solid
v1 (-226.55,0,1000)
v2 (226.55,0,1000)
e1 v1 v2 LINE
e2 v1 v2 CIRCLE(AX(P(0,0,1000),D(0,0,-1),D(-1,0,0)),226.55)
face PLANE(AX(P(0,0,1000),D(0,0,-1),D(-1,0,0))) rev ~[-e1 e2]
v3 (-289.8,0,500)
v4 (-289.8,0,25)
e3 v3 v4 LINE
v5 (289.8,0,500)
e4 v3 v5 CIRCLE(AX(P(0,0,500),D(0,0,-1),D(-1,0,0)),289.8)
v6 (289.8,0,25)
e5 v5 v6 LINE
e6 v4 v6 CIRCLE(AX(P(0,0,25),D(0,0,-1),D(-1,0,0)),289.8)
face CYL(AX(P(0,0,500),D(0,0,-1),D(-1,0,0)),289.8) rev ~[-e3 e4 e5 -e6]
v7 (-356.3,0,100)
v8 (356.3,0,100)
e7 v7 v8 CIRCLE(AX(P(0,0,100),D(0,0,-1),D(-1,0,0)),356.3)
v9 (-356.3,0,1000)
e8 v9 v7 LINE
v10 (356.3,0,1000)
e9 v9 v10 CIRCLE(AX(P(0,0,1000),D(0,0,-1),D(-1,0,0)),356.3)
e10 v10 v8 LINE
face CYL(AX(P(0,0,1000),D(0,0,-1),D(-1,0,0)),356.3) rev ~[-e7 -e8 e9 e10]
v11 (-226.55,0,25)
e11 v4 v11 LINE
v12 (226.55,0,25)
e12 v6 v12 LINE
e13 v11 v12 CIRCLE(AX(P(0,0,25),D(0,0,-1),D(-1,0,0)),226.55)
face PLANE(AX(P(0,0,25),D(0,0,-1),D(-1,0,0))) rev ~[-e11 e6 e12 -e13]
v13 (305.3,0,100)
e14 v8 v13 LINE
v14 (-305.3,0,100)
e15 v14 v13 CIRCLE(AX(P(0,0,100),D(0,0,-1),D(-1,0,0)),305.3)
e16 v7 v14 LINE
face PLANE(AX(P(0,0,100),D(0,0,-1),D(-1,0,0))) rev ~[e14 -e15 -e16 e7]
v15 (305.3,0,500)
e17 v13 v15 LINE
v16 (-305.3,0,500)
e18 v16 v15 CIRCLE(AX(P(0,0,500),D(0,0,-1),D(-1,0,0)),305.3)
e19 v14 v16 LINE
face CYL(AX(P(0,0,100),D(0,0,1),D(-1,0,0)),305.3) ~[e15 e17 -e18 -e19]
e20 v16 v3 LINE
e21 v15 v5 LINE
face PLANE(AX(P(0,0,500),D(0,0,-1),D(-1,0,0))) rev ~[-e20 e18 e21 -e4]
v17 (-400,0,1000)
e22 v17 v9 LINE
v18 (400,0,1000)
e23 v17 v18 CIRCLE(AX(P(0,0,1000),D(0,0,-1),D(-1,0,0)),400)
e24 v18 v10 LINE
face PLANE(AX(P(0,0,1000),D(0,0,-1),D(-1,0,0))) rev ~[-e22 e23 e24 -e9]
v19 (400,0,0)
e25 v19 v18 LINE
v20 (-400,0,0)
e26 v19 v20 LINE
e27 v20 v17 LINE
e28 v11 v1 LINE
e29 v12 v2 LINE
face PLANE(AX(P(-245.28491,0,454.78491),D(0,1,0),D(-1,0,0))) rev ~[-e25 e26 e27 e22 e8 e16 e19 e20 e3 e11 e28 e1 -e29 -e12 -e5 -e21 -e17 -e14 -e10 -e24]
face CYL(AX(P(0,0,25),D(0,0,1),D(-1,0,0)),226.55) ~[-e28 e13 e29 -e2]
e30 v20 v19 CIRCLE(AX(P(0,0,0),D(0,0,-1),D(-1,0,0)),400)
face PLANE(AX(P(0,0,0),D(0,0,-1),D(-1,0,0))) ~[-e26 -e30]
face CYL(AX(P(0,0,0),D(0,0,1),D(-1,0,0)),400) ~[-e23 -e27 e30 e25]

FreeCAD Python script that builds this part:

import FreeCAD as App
import Part
import Sketcher
from FreeCAD import Vector


def add_polygon(sketch, points):
    """Adds a closed chain of lines whose ends are joined by coincident constraints."""
    first, n = sketch.GeometryCount, len(points)
    for a, b in zip(points, points[1:] + points[:1]):
        sketch.addGeometry(Part.LineSegment(App.Vector(*a, 0), App.Vector(*b, 0)), False)
    for i in range(n):
        sketch.addConstraint(Sketcher.Constraint("Coincident", first + i, 2, first + (i + 1) % n, 1))

doc = App.newDocument("Part")
body = doc.addObject("PartDesign::Body", "Body")

# Sketch on XZ plane
sketch1 = body.newObject("Sketcher::SketchObject", "Sketch")
sketch1.AttachmentSupport = (doc.getObject("XZ_Plane"), [""])
sketch1.MapMode = "FlatFace"
add_polygon(sketch1, [(0, 1000), (0, 0), (-400, 0), (-400, 1000), (-356.3, 1000), (-356.3, 100), (-305.3, 100), (-305.3, 500), (-289.8, 500), (-289.8, 25), (-226.55, 25), (-226.55, 1000)])  # lines 0-11
sketch1.addConstraint(Sketcher.Constraint("Vertical", 0))
sketch1.addConstraint(Sketcher.Constraint("Horizontal", 1))
sketch1.addConstraint(Sketcher.Constraint("Vertical", 2))
sketch1.addConstraint(Sketcher.Constraint("Horizontal", 3))
sketch1.addConstraint(Sketcher.Constraint("Vertical", 4))
sketch1.addConstraint(Sketcher.Constraint("Horizontal", 5))
sketch1.addConstraint(Sketcher.Constraint("Vertical", 6))
sketch1.addConstraint(Sketcher.Constraint("Horizontal", 7))
sketch1.addConstraint(Sketcher.Constraint("Vertical", 8))
sketch1.addConstraint(Sketcher.Constraint("Horizontal", 9))
sketch1.addConstraint(Sketcher.Constraint("Vertical", 10))
sketch1.addConstraint(Sketcher.Constraint("Horizontal", 11))
sketch1.addConstraint(Sketcher.Constraint("Coincident", 0, 2, -1, 1))
sketch1.addConstraint(Sketcher.Constraint("Horizontal", 3, 2, 10, 2))
sketch1.addConstraint(Sketcher.Constraint("Equal", 1, 6))
sketch1.addConstraint(Sketcher.Constraint("DistanceX", 1, 2, 1, 1, 400.0))
sketch1.addConstraint(Sketcher.Constraint("DistanceX", 5, 1, 5, 2, 51.0))
sketch1.addConstraint(Sketcher.Constraint("DistanceY", 0, 2, 0, 1, 1000.0))
sketch1.addConstraint(Sketcher.Constraint("DistanceY", 4, 2, 4, 1, 900.0))
sketch1.addConstraint(Sketcher.Constraint("DistanceY", 8, 2, 8, 1, 475.0))
sketch1.addConstraint(Sketcher.Constraint("DistanceX", 3, 1, 3, 2, 43.7))
sketch1.addConstraint(Sketcher.Constraint("DistanceX", 7, 1, 7, 2, 15.5))
sketch1.addConstraint(Sketcher.Constraint("DistanceX", 9, 1, 9, 2, 63.25))
revolution = body.newObject("PartDesign::Revolution", "Revolution")
revolution.Profile = sketch1
revolution.ReferenceAxis = (sketch1, ["V_Axis"])
revolution.Angle = 180
revolution.Reversed = True

doc.recompute()
